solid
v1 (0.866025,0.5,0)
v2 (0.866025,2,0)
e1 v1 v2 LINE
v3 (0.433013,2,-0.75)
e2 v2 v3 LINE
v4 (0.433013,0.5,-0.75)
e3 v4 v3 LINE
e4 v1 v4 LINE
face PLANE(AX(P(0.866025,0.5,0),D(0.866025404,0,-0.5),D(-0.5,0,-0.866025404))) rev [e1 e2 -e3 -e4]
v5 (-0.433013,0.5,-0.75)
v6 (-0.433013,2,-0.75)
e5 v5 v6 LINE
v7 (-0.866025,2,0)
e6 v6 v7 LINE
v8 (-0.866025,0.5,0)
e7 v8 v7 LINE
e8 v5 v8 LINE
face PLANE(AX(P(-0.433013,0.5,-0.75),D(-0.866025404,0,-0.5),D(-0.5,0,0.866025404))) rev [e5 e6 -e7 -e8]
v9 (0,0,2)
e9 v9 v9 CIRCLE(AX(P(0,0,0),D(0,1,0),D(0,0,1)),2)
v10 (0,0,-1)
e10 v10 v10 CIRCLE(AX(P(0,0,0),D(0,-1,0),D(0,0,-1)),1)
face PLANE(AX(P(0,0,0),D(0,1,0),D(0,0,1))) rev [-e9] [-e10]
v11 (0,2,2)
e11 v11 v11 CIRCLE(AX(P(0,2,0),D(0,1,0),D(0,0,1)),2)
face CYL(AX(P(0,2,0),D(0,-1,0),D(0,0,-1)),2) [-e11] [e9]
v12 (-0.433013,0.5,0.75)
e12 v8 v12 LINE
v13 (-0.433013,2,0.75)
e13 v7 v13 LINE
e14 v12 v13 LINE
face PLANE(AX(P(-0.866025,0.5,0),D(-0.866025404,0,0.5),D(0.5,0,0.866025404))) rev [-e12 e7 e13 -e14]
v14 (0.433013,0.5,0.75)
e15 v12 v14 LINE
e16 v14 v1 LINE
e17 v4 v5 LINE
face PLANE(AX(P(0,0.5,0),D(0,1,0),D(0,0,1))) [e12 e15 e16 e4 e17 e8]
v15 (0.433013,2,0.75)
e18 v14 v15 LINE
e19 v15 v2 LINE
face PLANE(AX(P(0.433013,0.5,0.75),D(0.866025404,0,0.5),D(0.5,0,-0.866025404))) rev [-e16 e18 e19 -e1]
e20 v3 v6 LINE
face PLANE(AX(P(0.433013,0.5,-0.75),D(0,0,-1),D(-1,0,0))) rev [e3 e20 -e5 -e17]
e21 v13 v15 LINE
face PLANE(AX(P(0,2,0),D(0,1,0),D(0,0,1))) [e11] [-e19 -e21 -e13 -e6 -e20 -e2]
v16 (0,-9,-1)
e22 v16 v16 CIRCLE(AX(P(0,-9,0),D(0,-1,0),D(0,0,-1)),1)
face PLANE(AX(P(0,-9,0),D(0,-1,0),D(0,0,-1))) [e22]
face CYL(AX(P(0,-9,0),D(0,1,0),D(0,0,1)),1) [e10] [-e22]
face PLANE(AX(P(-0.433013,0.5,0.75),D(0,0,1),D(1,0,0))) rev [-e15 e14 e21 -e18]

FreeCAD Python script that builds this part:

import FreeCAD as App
import Part
import Sketcher
Q = App.Units.Quantity

doc = App.newDocument("Part")
body = doc.addObject("PartDesign::Body", "Body")

# Sketch on XZ plane
sketch1 = body.newObject("Sketcher::SketchObject", "Sketch")
sketch1.AttachmentSupport = (doc.getObject("XZ_Plane"), [""])
sketch1.MapMode = "FlatFace"
sketch1.addGeometry(Part.Circle(App.Vector(0, 0, 0), App.Vector(0, 0, 1), 2), False)
sketch1.addConstraint(Sketcher.Constraint("Coincident", 0, 3, -1, 1))
sketch1.addConstraint(Sketcher.Constraint("Diameter", 0, 4.0))
pad1 = body.newObject("PartDesign::Pad", "Pad")
pad1.Profile = sketch1
pad1.Length = 2
pad1.Reversed = True

# Sketch on XZ plane
sketch2 = body.newObject("Sketcher::SketchObject", "Sketch001")
sketch2.AttachmentSupport = (doc.getObject("XZ_Plane"), [""])
sketch2.MapMode = "FlatFace"
sketch2.AttachmentOffset = App.Placement(App.Vector(0, 0, -2), App.Rotation())
sketch2.addGeometry(Part.LineSegment(App.Vector(0.9, 0, 0), App.Vector(0.4, -0.8, 0)), False)
sketch2.addGeometry(Part.LineSegment(App.Vector(0.4, -0.8, 0), App.Vector(-0.4, -0.8, 0)), False)
sketch2.addGeometry(Part.LineSegment(App.Vector(-0.4, -0.8, 0), App.Vector(-0.9, 0, 0)), False)
sketch2.addGeometry(Part.LineSegment(App.Vector(-0.9, 0, 0), App.Vector(-0.4, 0.8, 0)), False)
sketch2.addGeometry(Part.LineSegment(App.Vector(-0.4, 0.8, 0), App.Vector(0.4, 0.8, 0)), False)
sketch2.addGeometry(Part.LineSegment(App.Vector(0.4, 0.8, 0), App.Vector(0.9, 0, 0)), False)
sketch2.addConstraint(Sketcher.Constraint("Coincident", 0, 2, 1, 1))
sketch2.addConstraint(Sketcher.Constraint("Coincident", 1, 2, 2, 1))
sketch2.addConstraint(Sketcher.Constraint("Coincident", 2, 2, 3, 1))
sketch2.addConstraint(Sketcher.Constraint("Coincident", 3, 2, 4, 1))
sketch2.addConstraint(Sketcher.Constraint("Coincident", 4, 2, 5, 1))
sketch2.addConstraint(Sketcher.Constraint("Coincident", 5, 2, 0, 1))
sketch2.addConstraint(Sketcher.Constraint("Horizontal", 1))
sketch2.addConstraint(Sketcher.Constraint("Horizontal", 4))
sketch2.addConstraint(Sketcher.Constraint("Symmetric", 0, 2, 3, 2, -1, 1))
sketch2.addConstraint(Sketcher.Constraint("Symmetric", 2, 2, 5, 2, -1, 1))
sketch2.addConstraint(Sketcher.Constraint("PointOnObject", 2, 2, -1))
sketch2.addConstraint(Sketcher.Constraint("Parallel", 2, 5))
sketch2.addConstraint(Sketcher.Constraint("Vertical", 1, 2, 3, 2))
sketch2.addConstraint(Sketcher.Constraint("Angle", 0, Q("-120 deg")))
sketch2.addConstraint(Sketcher.Constraint("DistanceY", 1, 2, 3, 2, 1.5))
sketch2.addConstraint(Sketcher.Constraint("DistanceX", 1, 2, 1, 1, 0.866025))
pocket1 = body.newObject("PartDesign::Pocket", "Pocket")
pocket1.Profile = sketch2
pocket1.Length = 1.5
pocket1.Reversed = True

# Sketch on XZ plane
sketch3 = body.newObject("Sketcher::SketchObject", "Sketch002")
sketch3.AttachmentSupport = (doc.getObject("XZ_Plane"), [""])
sketch3.MapMode = "FlatFace"
sketch3.addGeometry(Part.Circle(App.Vector(0, 0, 0), App.Vector(0, 0, 1), 1), False)
sketch3.addConstraint(Sketcher.Constraint("Coincident", 0, 3, -1, 1))
sketch3.addConstraint(Sketcher.Constraint("Diameter", 0, 2.0))
pad2 = body.newObject("PartDesign::Pad", "Pad001")
pad2.Profile = sketch3
pad2.Length = 9

doc.recompute()
